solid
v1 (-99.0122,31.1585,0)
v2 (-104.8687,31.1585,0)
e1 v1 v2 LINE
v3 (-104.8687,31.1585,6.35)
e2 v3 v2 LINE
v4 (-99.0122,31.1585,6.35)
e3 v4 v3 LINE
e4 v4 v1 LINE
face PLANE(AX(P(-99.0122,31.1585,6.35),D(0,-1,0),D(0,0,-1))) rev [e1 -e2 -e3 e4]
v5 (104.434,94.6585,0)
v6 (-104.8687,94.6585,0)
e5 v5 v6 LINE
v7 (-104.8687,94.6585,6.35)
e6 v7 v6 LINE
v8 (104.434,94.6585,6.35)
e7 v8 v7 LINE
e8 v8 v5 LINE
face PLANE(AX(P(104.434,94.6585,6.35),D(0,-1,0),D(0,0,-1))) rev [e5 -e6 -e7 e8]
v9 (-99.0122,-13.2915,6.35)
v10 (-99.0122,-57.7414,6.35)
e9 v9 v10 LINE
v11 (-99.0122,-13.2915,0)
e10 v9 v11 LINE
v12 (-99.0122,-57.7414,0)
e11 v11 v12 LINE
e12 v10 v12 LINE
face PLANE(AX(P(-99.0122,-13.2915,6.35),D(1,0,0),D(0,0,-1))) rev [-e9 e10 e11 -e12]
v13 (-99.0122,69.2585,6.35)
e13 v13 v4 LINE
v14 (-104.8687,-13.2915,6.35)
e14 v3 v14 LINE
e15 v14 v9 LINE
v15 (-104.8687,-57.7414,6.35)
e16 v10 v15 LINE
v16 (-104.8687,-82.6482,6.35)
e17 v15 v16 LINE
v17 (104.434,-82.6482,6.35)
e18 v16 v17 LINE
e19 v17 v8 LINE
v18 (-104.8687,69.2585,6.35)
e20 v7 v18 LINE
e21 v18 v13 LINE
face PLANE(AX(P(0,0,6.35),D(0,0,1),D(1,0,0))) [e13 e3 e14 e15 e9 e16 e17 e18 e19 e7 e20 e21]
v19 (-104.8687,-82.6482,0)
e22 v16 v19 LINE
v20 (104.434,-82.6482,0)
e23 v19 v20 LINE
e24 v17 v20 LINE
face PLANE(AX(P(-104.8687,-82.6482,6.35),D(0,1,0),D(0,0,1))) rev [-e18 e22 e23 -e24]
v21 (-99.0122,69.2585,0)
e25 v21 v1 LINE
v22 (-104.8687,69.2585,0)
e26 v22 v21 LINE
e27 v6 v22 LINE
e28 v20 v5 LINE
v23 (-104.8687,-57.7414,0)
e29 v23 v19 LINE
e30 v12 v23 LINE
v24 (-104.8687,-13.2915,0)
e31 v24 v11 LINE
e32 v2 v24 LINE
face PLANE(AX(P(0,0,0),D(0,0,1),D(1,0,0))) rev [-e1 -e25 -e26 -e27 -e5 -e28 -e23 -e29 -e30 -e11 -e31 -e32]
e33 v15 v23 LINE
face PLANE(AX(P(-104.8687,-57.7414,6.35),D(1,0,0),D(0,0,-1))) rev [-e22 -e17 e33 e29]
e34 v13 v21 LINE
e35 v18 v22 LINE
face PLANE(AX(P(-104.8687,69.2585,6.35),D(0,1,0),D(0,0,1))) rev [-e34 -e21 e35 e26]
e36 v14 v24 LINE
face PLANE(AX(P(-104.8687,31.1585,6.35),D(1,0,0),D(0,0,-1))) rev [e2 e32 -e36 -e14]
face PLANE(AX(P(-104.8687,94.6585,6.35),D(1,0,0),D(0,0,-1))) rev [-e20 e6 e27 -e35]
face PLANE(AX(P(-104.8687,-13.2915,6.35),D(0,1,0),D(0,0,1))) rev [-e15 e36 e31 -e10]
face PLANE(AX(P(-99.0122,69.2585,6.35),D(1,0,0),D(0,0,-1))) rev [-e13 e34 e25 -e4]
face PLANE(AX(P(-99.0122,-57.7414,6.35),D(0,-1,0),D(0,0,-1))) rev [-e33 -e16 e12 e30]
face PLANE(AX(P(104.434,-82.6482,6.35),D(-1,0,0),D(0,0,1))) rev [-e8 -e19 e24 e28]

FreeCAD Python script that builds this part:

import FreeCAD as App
import Part
import Sketcher

V = App.Vector
Q = App.Units.Quantity

doc = App.newDocument("Part")
body = doc.addObject("PartDesign::Body", "Body")

sketch1 = body.newObject("Sketcher::SketchObject", "Sketch")
sketch1.AttachmentSupport = (doc.getObject("XY_Plane"), [""])
sketch1.MapMode = "FlatFace"
sketch1.addGeometry([
    Part.LineSegment(V(104, 95, 0), V(-105, 95, 0)),
    Part.LineSegment(V(-105, 95, 0), V(-105, 69, 0)),
    Part.LineSegment(V(-105, 69, 0), V(-99, 69, 0)),
    Part.LineSegment(V(-99, 69, 0), V(-99, 31, 0)),
    Part.LineSegment(V(-99, 31, 0), V(-105, 31, 0)),
    Part.LineSegment(V(-105, 31, 0), V(-105, -13, 0)),
    Part.LineSegment(V(-105, -13, 0), V(-99, -13, 0)),
    Part.LineSegment(V(-99, -13, 0), V(-99, -58, 0)),
    Part.LineSegment(V(-99, -58, 0), V(-105, -58, 0)),
    Part.LineSegment(V(-105, -58, 0), V(-105, -83, 0)),
    Part.LineSegment(V(-105, -83, 0), V(104, -83, 0)),
    Part.LineSegment(V(104, -83, 0), V(104, 95, 0)),
], False)
sketch1.addConstraint([
    Sketcher.Constraint("Coincident", 0, 2, 1, 1),
    Sketcher.Constraint("Coincident", 1, 2, 2, 1),
    Sketcher.Constraint("Coincident", 2, 2, 3, 1),
    Sketcher.Constraint("Coincident", 3, 2, 4, 1),
    Sketcher.Constraint("Coincident", 4, 2, 5, 1),
    Sketcher.Constraint("Coincident", 5, 2, 6, 1),
    Sketcher.Constraint("Coincident", 6, 2, 7, 1),
    Sketcher.Constraint("Coincident", 7, 2, 8, 1),
    Sketcher.Constraint("Coincident", 8, 2, 9, 1),
    Sketcher.Constraint("Coincident", 9, 2, 10, 1),
    Sketcher.Constraint("Coincident", 10, 2, 11, 1),
    Sketcher.Constraint("Coincident", 11, 2, 0, 1),
    Sketcher.Constraint("Horizontal", 0),
    Sketcher.Constraint("Vertical", 1),
    Sketcher.Constraint("Horizontal", 2),
    Sketcher.Constraint("Vertical", 3),
    Sketcher.Constraint("Horizontal", 4),
    Sketcher.Constraint("Vertical", 5),
    Sketcher.Constraint("Horizontal", 6),
    Sketcher.Constraint("Vertical", 7),
    Sketcher.Constraint("Horizontal", 8),
    Sketcher.Constraint("Vertical", 9),
    Sketcher.Constraint("Horizontal", 10),
    Sketcher.Constraint("Vertical", 11),
    Sketcher.Constraint("Vertical", 1, 2, 4, 2),
    Sketcher.Constraint("Vertical", 3, 2, 6, 2),
    Sketcher.Constraint("Vertical", 5, 2, 8, 2),
    Sketcher.Constraint("DistanceY", 1, 2, 1, 1, Q("1 in")),
    Sketcher.Constraint("DistanceY", 3, 2, 3, 1, Q("1.5 in")),
    Sketcher.Constraint("DistanceY", 5, 2, 5, 1, Q("1.75 in")),
    Sketcher.Constraint("DistanceX", 0, 2, 0, 1, 209.3027),
    Sketcher.Constraint("DistanceX", 2, 1, 2, 2, 5.8565),
    Sketcher.Constraint("DistanceY", 7, 2, 7, 1, 44.4499),
    Sketcher.Constraint("DistanceY", 9, 2, 9, 1, 24.9068),
    Sketcher.Constraint("DistanceX", 0, 2, -1, 1, 104.8687),
    Sketcher.Constraint("DistanceY", -1, 1, 0, 2, 94.6585),
])
pad1 = body.newObject("PartDesign::Pad", "Pad")
pad1.Profile = sketch1
pad1.Length = Q("0.25 in")

doc.recompute()
